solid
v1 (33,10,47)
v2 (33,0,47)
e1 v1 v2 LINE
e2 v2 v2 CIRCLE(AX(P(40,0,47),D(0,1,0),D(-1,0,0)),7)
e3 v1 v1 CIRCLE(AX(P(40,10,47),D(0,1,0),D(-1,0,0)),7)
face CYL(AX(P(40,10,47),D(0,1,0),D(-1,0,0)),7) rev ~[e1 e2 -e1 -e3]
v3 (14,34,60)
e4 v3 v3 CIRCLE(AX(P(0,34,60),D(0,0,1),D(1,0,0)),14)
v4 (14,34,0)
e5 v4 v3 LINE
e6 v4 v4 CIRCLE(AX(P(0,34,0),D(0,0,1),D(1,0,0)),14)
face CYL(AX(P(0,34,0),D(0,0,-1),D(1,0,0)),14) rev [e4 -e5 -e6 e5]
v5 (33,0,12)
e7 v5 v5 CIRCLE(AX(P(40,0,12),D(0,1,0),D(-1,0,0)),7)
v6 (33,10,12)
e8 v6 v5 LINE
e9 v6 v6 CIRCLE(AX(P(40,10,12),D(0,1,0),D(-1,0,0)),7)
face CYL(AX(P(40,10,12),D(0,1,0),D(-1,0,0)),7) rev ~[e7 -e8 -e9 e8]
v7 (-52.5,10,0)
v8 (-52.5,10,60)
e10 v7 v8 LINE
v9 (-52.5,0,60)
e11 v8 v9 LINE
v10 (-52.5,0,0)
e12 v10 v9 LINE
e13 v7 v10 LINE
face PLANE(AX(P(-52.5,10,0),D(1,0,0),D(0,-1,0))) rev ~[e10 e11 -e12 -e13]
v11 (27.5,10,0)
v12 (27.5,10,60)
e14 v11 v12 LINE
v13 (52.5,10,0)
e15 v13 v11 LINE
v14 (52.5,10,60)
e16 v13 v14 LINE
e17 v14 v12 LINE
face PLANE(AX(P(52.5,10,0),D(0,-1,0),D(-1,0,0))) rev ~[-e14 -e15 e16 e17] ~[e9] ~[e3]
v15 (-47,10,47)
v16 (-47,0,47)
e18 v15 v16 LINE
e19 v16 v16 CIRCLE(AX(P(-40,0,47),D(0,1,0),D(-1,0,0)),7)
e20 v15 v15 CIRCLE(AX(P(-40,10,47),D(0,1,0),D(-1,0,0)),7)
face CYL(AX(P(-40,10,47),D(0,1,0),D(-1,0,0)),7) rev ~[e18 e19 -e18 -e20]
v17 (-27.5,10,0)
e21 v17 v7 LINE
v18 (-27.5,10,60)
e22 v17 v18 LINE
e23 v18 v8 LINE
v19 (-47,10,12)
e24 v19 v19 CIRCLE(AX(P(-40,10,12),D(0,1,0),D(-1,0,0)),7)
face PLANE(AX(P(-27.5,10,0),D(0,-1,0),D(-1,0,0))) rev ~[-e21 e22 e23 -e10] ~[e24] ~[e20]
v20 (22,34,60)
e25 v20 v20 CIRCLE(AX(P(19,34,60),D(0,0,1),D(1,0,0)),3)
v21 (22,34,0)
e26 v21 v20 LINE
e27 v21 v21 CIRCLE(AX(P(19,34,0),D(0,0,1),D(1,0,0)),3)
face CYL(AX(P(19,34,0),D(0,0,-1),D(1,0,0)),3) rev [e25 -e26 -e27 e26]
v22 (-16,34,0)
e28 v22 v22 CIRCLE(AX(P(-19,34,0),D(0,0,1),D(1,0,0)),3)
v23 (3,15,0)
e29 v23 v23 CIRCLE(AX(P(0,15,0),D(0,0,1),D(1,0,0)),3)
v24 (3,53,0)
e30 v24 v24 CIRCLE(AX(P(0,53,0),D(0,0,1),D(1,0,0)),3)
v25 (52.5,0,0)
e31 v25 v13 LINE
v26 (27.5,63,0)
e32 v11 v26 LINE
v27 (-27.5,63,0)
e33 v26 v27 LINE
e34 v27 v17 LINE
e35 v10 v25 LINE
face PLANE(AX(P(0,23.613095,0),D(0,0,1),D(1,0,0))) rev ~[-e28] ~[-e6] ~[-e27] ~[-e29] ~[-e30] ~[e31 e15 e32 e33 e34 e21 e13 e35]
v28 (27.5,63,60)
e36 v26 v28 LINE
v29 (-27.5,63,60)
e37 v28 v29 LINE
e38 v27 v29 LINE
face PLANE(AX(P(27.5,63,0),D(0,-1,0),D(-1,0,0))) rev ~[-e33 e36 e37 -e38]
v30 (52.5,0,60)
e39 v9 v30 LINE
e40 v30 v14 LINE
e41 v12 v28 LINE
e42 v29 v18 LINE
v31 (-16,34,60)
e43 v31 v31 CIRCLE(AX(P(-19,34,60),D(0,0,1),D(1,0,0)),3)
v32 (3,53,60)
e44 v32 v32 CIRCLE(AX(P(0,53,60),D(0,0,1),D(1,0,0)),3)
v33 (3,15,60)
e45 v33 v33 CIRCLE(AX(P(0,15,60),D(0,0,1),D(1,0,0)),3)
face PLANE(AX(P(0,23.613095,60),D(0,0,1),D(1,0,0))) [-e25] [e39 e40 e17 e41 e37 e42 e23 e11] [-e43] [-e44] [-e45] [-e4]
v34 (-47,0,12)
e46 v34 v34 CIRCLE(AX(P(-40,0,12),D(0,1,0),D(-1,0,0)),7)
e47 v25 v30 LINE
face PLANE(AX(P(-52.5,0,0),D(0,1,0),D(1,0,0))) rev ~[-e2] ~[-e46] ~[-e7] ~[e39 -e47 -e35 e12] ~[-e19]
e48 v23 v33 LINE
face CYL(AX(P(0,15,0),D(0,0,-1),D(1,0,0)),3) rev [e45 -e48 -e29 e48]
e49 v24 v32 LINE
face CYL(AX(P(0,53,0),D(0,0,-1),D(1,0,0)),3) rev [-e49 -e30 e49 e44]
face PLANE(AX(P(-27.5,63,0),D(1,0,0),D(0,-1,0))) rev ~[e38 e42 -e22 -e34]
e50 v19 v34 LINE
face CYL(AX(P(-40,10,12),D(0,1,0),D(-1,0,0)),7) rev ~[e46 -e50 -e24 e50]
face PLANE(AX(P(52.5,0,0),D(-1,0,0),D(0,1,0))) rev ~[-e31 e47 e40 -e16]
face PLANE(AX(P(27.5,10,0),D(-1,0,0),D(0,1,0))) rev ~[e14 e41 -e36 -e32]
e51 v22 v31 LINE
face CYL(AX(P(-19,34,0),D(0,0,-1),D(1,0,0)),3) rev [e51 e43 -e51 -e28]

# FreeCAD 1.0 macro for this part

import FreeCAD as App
import Part
import Sketcher
Q = App.Units.Quantity


def add_polygon(sketch, points):
    """Adds a closed chain of lines whose ends are joined by coincident constraints."""
    first, n = sketch.GeometryCount, len(points)
    for a, b in zip(points, points[1:] + points[:1]):
        sketch.addGeometry(Part.LineSegment(App.Vector(*a, 0), App.Vector(*b, 0)), False)
    for i in range(n):
        sketch.addConstraint(Sketcher.Constraint("Coincident", first + i, 2, first + (i + 1) % n, 1))

doc = App.newDocument("Part")
body = doc.addObject("PartDesign::Body", "Body")

# Sketch on XY plane
sketch1 = doc.addObject("Sketcher::SketchObject", "Sketch")
body.addObject(sketch1)
sketch1.AttachmentSupport = (doc.XY_Plane, [""])
sketch1.MapMode = "FlatFace"
add_polygon(sketch1, [(-52.5, 10), (-52.5, 0), (52.5, 0), (52.5, 10), (27.5, 10), (27.5, 63), (-27.5, 63), (-27.5, 10)])  # lines 0-7
sketch1.addGeometry(Part.Circle(App.Vector(0, 15, 0), App.Vector(0, 0, 1), 3), False)  # 8
sketch1.addGeometry(Part.Circle(App.Vector(-19, 34, 0), App.Vector(0, 0, 1), 3), False)  # 9
sketch1.addGeometry(Part.Circle(App.Vector(0, 34, 0), App.Vector(0, 0, 1), 14), False)  # 10
sketch1.addGeometry(Part.Circle(App.Vector(19, 34, 0), App.Vector(0, 0, 1), 3), False)  # 11
sketch1.addGeometry(Part.Circle(App.Vector(0, 53, 0), App.Vector(0, 0, 1), 3), False)  # 12
sketch1.addConstraint([
    Sketcher.Constraint("Vertical", 0),
    Sketcher.Constraint("Horizontal", 1),
    Sketcher.Constraint("Vertical", 2),
    Sketcher.Constraint("Horizontal", 3),
    Sketcher.Constraint("Vertical", 4),
    Sketcher.Constraint("Horizontal", 5),
    Sketcher.Constraint("Vertical", 6),
    Sketcher.Constraint("Horizontal", 7),
    Sketcher.Constraint("Equal", 8, 9),
    Sketcher.Constraint("Equal", 9, 11),
    Sketcher.Constraint("Equal", 11, 12),
    Sketcher.Constraint("Symmetric", 0, 2, 1, 2, -1, 1),
    Sketcher.Constraint("Symmetric", 9, 3, 11, 3, -2),
    Sketcher.Constraint("Symmetric", 3, 2, 6, 2, -2),
    Sketcher.Constraint("PointOnObject", 8, 3, -2),
    Sketcher.Constraint("PointOnObject", 10, 3, -2),
    Sketcher.Constraint("PointOnObject", 12, 3, -2),
    Sketcher.Constraint("Horizontal", 9, 3, 10, 3),
    Sketcher.Constraint("Diameter", 8, Q("6 mm")),
    Sketcher.Constraint("Diameter", 10, Q("28 mm")),
    Sketcher.Constraint("DistanceX", 1, 1, 1, 2, Q("105 mm")),
    Sketcher.Constraint("DistanceX", 3, 2, 3, 1, Q("25 mm")),
    Sketcher.Constraint("DistanceY", 0, 2, 0, 1, Q("10 mm")),
    Sketcher.Constraint("DistanceY", 4, 1, 4, 2, Q("53 mm")),
    Sketcher.Constraint("DistanceY", -1, 1, 8, 3, Q("15 mm")),
    Sketcher.Constraint("DistanceX", 9, 3, -1, 1, Q("19 mm")),
    Sketcher.Constraint("DistanceY", -1, 1, 9, 3, Q("34 mm")),
    Sketcher.Constraint("DistanceY", -1, 1, 12, 3, Q("53 mm")),
])
pad1 = doc.addObject("PartDesign::Pad", "Pad")
body.addObject(pad1)
pad1.Profile = sketch1
pad1.Length = 60

# Sketch on XZ plane
sketch2 = doc.addObject("Sketcher::SketchObject", "Sketch001")
body.addObject(sketch2)
sketch2.AttachmentSupport = (doc.XZ_Plane, [""])
sketch2.MapMode = "FlatFace"
sketch2.AttachmentOffset = App.Placement(App.Vector(0, 0, -10), App.Rotation())
sketch2.addGeometry([
    Part.Circle(App.Vector(40, 47, 0), App.Vector(0, 0, 1), 7),
    Part.Circle(App.Vector(40, 12, 0), App.Vector(0, 0, 1), 7),
    Part.Circle(App.Vector(-40, 47, 0), App.Vector(0, 0, 1), 7),
    Part.Circle(App.Vector(-40, 12, 0), App.Vector(0, 0, 1), 7),
], False)
sketch2.addConstraint([
    Sketcher.Constraint("Equal", 0, 1),
    Sketcher.Constraint("Equal", 1, 2),
    Sketcher.Constraint("Equal", 2, 3),
    Sketcher.Constraint("Symmetric", 0, 3, 2, 3, -2),
    Sketcher.Constraint("Symmetric", 1, 3, 3, 3, -2),
    Sketcher.Constraint("Vertical", 0, 3, 1, 3),
    Sketcher.Constraint("Diameter", 0, Q("14 mm")),
    Sketcher.Constraint("DistanceX", -1, 1, 0, 3, Q("40 mm")),
    Sketcher.Constraint("DistanceY", -1, 1, 0, 3, Q("47 mm")),
    Sketcher.Constraint("DistanceY", -1, 1, 1, 3, Q("12 mm")),
])
pocket1 = doc.addObject("PartDesign::Pocket", "Pocket")
body.addObject(pocket1)
pocket1.Profile = sketch2
pocket1.Length = 25
pocket1.Reversed = True

doc.recompute()
